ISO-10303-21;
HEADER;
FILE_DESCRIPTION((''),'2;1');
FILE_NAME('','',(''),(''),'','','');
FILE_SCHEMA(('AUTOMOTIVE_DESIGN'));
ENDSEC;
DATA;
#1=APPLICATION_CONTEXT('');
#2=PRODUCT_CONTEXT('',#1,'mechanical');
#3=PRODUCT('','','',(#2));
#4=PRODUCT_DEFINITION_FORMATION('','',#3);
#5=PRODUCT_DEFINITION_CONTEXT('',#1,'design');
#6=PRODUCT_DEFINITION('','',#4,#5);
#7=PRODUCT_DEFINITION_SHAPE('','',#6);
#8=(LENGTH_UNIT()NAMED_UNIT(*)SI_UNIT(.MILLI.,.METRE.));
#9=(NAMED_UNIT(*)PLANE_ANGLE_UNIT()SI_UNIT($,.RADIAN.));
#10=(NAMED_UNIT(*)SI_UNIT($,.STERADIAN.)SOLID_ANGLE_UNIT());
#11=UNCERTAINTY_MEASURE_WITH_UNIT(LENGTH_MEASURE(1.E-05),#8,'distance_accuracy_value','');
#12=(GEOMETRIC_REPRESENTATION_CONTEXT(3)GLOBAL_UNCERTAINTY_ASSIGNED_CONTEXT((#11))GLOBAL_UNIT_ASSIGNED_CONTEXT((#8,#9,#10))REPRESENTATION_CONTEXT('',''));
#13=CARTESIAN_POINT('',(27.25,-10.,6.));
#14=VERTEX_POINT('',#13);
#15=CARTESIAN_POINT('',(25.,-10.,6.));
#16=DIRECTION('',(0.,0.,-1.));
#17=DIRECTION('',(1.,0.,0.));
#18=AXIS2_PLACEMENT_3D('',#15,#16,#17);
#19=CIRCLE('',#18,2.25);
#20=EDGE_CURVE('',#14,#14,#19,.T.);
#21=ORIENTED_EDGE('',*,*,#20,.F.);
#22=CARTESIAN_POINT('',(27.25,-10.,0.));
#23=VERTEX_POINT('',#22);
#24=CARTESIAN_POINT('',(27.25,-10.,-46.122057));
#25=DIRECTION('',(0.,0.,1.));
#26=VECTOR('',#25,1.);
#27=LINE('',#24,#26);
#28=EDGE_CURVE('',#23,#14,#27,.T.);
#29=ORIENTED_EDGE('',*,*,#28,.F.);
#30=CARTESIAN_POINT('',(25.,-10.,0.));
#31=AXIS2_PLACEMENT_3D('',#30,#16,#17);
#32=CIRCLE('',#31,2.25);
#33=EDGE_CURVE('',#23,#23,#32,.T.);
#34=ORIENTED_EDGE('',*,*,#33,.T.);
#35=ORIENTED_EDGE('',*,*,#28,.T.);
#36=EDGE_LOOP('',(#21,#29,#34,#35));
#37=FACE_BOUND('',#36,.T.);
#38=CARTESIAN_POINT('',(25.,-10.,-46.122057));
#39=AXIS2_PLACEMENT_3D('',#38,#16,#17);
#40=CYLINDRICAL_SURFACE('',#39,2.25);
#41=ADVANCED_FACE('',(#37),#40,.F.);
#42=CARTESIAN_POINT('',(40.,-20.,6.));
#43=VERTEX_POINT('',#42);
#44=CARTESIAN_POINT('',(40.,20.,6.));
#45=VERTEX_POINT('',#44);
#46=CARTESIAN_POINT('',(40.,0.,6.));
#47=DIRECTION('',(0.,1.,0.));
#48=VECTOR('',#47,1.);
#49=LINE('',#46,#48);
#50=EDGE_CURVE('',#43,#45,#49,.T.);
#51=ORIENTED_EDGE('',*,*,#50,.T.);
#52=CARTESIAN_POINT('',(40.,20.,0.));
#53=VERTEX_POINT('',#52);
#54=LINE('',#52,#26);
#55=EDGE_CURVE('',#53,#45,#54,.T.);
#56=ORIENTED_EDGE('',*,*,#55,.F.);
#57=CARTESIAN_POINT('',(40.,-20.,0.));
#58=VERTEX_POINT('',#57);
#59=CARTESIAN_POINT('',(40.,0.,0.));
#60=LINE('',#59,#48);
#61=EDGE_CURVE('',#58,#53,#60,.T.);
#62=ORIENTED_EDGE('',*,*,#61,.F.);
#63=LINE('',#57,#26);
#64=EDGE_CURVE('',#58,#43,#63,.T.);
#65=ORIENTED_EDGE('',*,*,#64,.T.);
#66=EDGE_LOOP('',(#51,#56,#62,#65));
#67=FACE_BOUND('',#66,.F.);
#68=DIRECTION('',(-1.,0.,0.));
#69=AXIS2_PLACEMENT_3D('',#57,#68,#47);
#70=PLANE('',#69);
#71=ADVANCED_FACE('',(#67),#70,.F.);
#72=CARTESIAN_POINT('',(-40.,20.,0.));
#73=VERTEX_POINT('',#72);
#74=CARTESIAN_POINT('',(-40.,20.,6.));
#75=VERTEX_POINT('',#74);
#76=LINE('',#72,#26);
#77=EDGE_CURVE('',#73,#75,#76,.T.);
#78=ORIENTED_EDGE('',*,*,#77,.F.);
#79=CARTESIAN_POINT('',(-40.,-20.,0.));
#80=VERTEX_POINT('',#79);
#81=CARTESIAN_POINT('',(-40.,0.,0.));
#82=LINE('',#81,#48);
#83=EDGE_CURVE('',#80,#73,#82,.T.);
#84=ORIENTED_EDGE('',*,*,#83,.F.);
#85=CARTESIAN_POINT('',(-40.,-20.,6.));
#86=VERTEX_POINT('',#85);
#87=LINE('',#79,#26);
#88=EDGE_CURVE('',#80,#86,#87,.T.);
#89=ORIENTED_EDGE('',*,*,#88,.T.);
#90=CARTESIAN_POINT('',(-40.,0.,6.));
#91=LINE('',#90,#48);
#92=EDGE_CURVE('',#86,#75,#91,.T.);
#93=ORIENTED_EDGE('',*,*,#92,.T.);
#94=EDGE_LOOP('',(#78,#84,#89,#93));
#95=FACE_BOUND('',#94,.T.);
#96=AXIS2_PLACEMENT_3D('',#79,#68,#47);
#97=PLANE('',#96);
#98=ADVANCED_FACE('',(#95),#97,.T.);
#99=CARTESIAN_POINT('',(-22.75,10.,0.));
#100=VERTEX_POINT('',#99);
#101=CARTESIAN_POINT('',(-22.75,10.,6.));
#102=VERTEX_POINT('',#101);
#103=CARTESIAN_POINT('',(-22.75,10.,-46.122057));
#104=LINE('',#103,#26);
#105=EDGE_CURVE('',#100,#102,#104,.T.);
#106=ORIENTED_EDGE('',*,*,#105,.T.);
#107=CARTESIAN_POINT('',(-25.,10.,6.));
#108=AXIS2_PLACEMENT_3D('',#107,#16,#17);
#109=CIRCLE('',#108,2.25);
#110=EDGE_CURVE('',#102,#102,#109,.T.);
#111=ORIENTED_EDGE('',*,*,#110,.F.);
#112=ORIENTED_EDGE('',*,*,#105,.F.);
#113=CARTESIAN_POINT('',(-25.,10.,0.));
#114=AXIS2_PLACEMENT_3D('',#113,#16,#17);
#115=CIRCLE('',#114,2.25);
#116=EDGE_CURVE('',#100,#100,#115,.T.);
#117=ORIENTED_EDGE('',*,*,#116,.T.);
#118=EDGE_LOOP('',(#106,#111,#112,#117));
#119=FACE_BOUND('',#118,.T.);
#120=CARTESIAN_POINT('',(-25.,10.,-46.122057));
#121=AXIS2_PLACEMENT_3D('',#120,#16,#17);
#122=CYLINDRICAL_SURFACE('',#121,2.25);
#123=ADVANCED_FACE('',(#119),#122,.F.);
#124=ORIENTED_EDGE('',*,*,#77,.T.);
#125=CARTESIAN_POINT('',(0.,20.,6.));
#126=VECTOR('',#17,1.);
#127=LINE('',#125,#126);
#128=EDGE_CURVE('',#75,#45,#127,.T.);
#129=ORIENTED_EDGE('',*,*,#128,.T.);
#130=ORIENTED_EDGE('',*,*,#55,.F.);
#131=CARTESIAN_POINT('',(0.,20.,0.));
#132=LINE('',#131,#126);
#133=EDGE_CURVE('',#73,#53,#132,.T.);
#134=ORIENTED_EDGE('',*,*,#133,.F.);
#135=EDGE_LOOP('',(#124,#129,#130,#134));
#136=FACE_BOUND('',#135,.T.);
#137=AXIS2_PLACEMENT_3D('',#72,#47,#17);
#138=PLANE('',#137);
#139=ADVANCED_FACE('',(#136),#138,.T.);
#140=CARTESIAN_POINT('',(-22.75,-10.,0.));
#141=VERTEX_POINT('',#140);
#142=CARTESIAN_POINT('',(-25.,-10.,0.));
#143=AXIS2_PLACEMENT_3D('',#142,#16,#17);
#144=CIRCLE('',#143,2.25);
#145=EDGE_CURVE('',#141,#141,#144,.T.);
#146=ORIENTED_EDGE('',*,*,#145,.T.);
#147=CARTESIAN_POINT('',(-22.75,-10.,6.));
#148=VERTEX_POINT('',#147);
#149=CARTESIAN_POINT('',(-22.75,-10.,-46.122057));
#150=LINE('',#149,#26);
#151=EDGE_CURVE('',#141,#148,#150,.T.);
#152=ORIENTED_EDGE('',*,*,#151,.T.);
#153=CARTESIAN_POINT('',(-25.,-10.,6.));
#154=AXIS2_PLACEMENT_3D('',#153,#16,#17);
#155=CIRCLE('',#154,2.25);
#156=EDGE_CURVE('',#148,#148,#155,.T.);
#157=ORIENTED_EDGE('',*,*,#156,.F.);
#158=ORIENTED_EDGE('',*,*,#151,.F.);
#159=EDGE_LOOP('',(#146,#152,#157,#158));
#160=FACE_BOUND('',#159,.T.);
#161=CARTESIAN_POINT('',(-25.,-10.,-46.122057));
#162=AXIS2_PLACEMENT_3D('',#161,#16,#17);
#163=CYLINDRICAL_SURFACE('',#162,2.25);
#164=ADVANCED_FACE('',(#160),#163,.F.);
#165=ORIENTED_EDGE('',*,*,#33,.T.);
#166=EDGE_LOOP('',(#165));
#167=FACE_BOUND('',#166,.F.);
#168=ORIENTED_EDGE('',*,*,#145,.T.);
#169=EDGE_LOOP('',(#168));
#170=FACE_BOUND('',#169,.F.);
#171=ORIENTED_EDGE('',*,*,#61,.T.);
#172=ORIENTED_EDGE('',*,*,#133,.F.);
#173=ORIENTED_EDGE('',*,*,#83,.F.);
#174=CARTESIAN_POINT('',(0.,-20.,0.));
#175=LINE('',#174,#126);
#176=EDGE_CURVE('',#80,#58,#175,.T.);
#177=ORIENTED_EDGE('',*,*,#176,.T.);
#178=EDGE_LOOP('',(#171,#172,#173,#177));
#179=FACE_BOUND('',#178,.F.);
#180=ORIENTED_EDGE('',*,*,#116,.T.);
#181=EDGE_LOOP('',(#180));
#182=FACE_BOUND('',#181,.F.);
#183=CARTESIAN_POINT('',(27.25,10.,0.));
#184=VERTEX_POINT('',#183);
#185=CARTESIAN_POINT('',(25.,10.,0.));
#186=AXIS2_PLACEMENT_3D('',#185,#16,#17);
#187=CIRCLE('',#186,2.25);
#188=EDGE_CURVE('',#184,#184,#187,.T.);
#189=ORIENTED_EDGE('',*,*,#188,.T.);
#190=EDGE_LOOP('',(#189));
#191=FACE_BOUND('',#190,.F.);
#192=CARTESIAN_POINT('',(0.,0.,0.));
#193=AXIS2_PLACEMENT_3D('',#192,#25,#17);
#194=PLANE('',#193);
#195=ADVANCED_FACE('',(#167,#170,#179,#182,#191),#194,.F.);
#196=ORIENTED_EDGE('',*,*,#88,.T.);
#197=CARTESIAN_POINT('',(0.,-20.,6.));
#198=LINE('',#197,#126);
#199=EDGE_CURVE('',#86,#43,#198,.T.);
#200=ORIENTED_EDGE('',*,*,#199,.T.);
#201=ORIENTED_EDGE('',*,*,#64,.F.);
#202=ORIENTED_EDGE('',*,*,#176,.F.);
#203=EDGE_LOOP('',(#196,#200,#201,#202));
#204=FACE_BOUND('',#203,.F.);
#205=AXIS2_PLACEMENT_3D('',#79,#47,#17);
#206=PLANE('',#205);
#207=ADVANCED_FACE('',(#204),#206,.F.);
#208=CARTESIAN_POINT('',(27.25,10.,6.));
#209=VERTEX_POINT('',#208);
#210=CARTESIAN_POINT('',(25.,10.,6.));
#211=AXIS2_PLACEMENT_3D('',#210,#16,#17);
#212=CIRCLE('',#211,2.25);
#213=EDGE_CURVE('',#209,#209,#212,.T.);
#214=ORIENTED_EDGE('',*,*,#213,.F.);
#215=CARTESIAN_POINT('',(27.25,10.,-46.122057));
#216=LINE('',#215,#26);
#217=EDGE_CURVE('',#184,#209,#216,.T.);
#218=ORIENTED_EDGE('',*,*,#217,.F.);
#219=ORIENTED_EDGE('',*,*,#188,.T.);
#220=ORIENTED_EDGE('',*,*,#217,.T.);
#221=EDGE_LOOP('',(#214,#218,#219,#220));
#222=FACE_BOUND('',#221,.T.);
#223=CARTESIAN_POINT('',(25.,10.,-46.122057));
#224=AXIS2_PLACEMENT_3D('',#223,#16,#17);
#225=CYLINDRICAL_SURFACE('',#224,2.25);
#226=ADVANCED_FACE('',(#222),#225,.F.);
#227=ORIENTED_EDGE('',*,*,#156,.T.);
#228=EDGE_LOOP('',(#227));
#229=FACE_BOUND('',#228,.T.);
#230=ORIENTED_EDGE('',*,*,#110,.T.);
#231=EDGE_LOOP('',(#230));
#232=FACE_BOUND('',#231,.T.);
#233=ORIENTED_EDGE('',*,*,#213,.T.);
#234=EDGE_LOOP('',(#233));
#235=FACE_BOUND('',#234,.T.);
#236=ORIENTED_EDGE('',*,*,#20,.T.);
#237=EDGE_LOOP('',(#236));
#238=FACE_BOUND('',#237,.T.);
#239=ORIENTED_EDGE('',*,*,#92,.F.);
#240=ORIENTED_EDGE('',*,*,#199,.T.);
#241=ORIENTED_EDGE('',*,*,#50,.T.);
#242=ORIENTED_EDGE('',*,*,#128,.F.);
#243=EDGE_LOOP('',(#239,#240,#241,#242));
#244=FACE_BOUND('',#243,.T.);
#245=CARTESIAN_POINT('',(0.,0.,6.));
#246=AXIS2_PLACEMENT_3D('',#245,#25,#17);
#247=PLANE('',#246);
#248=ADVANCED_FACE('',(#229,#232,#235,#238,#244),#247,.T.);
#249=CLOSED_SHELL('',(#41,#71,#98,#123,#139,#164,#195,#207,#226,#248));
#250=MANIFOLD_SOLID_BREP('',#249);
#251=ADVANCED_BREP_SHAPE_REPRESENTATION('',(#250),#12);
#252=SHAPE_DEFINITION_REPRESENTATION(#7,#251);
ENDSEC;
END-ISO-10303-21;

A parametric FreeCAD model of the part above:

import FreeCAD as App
import Part
import Sketcher
from FreeCAD import Vector
Q = App.Units.Quantity


def add_polygon(sketch, points):
    """Adds a closed chain of lines whose ends are joined by coincident constraints."""
    first, n = sketch.GeometryCount, len(points)
    for a, b in zip(points, points[1:] + points[:1]):
        sketch.addGeometry(Part.LineSegment(App.Vector(*a, 0), App.Vector(*b, 0)), False)
    for i in range(n):
        sketch.addConstraint(Sketcher.Constraint("Coincident", first + i, 2, first + (i + 1) % n, 1))

doc = App.newDocument("Part")
body = doc.addObject("PartDesign::Body", "Body")

# Sketch on XY plane
sketch1 = body.newObject("Sketcher::SketchObject", "Sketch")
sketch1.AttachmentSupport = (doc.getObject("XY_Plane"), [""])
sketch1.MapMode = "FlatFace"
add_polygon(sketch1, [(-40, 20), (-40, -20), (40, -20), (40, 20)])  # lines 0-3
sketch1.addConstraint(Sketcher.Constraint("Vertical", 0))
sketch1.addConstraint(Sketcher.Constraint("Horizontal", 1))
sketch1.addConstraint(Sketcher.Constraint("Vertical", 2))
sketch1.addConstraint(Sketcher.Constraint("Horizontal", 3))
sketch1.addConstraint(Sketcher.Constraint("Symmetric", 0, 2, 2, 2, -1, 1))
sketch1.addConstraint(Sketcher.Constraint("DistanceX", 1, 1, 1, 2, Q("80 mm")))
sketch1.addConstraint(Sketcher.Constraint("DistanceY", 0, 2, 0, 1, Q("40 mm")))
pad1 = body.newObject("PartDesign::Pad", "Pad")
pad1.Profile = sketch1
pad1.Length = 6

# Sketch on XY plane
sketch2 = body.newObject("Sketcher::SketchObject", "Sketch001")
sketch2.AttachmentSupport = (doc.getObject("XY_Plane"), [""])
sketch2.MapMode = "FlatFace"
sketch2.addGeometry(Part.Circle(Vector(-25, -10, 0), Vector(0, 0, 1), 2.25), False)
sketch2.addGeometry(Part.Circle(Vector(-25, 10, 0), Vector(0, 0, 1), 2.25), False)
sketch2.addGeometry(Part.Circle(Vector(25, -10, 0), Vector(0, 0, 1), 2.25), False)
sketch2.addGeometry(Part.Circle(Vector(25, 10, 0), Vector(0, 0, 1), 2.25), False)
sketch2.addConstraint(Sketcher.Constraint("Equal", 0, 1))
sketch2.addConstraint(Sketcher.Constraint("Equal", 1, 2))
sketch2.addConstraint(Sketcher.Constraint("Equal", 2, 3))
sketch2.addConstraint(Sketcher.Constraint("Symmetric", 1, 3, 2, 3, -1, 1))
sketch2.addConstraint(Sketcher.Constraint("Symmetric", 0, 3, 3, 3, -1, 1))
sketch2.addConstraint(Sketcher.Constraint("Symmetric", 0, 3, 2, 3, -2))
sketch2.addConstraint(Sketcher.Constraint("Diameter", 0, Q("4.5 mm")))
sketch2.addConstraint(Sketcher.Constraint("DistanceX", 0, 3, -1, 1, Q("25 mm")))
sketch2.addConstraint(Sketcher.Constraint("DistanceY", 0, 3, -1, 1, Q("10 mm")))
pocket1 = body.newObject("PartDesign::Pocket", "Pocket")
pocket1.Profile = sketch2
pocket1.Type = "ThroughAll"
pocket1.Midplane = True

doc.recompute()
